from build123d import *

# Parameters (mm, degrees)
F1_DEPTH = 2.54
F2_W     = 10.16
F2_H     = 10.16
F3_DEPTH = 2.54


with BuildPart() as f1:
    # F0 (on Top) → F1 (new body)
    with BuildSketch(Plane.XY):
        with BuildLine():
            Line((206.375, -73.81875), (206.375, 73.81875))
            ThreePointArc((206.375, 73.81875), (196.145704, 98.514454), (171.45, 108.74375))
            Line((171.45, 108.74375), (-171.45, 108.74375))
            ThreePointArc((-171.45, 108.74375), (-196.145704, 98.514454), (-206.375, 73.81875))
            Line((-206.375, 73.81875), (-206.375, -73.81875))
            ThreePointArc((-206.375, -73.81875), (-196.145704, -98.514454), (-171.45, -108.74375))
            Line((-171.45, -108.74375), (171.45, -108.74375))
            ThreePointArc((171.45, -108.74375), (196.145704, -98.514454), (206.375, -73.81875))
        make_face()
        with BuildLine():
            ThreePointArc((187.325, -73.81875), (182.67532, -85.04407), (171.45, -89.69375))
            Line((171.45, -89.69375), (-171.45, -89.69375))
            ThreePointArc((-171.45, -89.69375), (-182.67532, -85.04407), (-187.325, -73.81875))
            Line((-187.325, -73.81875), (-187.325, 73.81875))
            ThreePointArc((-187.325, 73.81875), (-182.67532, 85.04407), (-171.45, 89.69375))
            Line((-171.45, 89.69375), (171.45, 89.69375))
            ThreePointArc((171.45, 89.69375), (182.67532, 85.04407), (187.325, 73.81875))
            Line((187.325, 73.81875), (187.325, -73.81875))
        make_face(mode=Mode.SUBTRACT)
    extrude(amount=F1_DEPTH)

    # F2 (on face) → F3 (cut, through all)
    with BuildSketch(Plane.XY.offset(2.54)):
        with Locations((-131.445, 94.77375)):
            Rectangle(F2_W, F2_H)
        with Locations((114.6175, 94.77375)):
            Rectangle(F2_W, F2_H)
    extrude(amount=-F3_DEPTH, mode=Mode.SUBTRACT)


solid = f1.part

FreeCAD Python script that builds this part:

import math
import FreeCAD as App
import Part
import Sketcher

V = App.Vector
Q = App.Units.Quantity

doc = App.newDocument("Part")
params = doc.addObject("Spreadsheet::Sheet", "Params")
for row, (alias, value) in enumerate([
    ("sketch1_width", "13.5 in"),
    ("sketch1_radius", "1.375 in"),
    ("sketch1_radius2", "0.625 in"),
    ("sketch1_height", "5.8125 in"),
    ("pad1_length", "0.1 in"),
    ("sketch2_width", "0.4 in"),
], start=1):
    params.set(f"A{row}", alias)
    params.set(f"B{row}", "=" + value)
    params.setAlias(f"B{row}", alias)

body = doc.addObject("PartDesign::Body", "Body")

sketch1 = body.newObject("Sketcher::SketchObject", "Sketch")
sketch1.AttachmentSupport = (doc.getObject("XY_Plane"), [""])
sketch1.MapMode = "FlatFace"
sketch1.addGeometry([
    Part.LineSegment(V(206, -74, 0), V(206, 74, 0)),
    Part.ArcOfCircle(Part.Circle(V(171, 74, 0), V(0, 0, 1), 35), math.radians(0), math.radians(90)),
    Part.LineSegment(V(171, 109, 0), V(-171, 109, 0)),
    Part.ArcOfCircle(Part.Circle(V(-171, 74, 0), V(0, 0, 1), 35), math.radians(90), math.radians(180)),
    Part.LineSegment(V(-206, 74, 0), V(-206, -74, 0)),
    Part.ArcOfCircle(Part.Circle(V(-171, -74, 0), V(0, 0, 1), 35), math.radians(-180), math.radians(-90)),
    Part.LineSegment(V(-171, -109, 0), V(171, -109, 0)),
    Part.ArcOfCircle(Part.Circle(V(171, -74, 0), V(0, 0, 1), 35), math.radians(-90), math.radians(0)),
    Part.LineSegment(V(187, 74, 0), V(187, -74, 0)),
    Part.ArcOfCircle(Part.Circle(V(171, -74, 0), V(0, 0, 1), 16), math.radians(-90), math.radians(0)),
    Part.LineSegment(V(171, -90, 0), V(-171, -90, 0)),
    Part.ArcOfCircle(Part.Circle(V(-171, -74, 0), V(0, 0, 1), 16), math.radians(-180), math.radians(-90)),
    Part.LineSegment(V(-187, -74, 0), V(-187, 74, 0)),
    Part.ArcOfCircle(Part.Circle(V(-171, 74, 0), V(0, 0, 1), 16), math.radians(90), math.radians(180)),
    Part.LineSegment(V(-171, 90, 0), V(171, 90, 0)),
    Part.ArcOfCircle(Part.Circle(V(171, 74, 0), V(0, 0, 1), 16), math.radians(0), math.radians(90)),
], False)
sketch1.addConstraint([
    Sketcher.Constraint("Tangent", 0, 2, 1, 1),
    Sketcher.Constraint("Tangent", 1, 2, 2, 1),
    Sketcher.Constraint("Tangent", 2, 2, 3, 1),
    Sketcher.Constraint("Tangent", 3, 2, 4, 1),
    Sketcher.Constraint("Tangent", 4, 2, 5, 1),
    Sketcher.Constraint("Tangent", 5, 2, 6, 1),
    Sketcher.Constraint("Tangent", 6, 2, 7, 1),
    Sketcher.Constraint("Tangent", 7, 2, 0, 1),
    Sketcher.Constraint("Tangent", 8, 2, 9, 2),
    Sketcher.Constraint("Tangent", 9, 1, 10, 1),
    Sketcher.Constraint("Tangent", 10, 2, 11, 2),
    Sketcher.Constraint("Tangent", 11, 1, 12, 1),
    Sketcher.Constraint("Tangent", 12, 2, 13, 2),
    Sketcher.Constraint("Tangent", 13, 1, 14, 1),
    Sketcher.Constraint("Tangent", 14, 2, 15, 2),
    Sketcher.Constraint("Tangent", 15, 1, 8, 1),
    Sketcher.Constraint("Vertical", 0),
    Sketcher.Constraint("Horizontal", 2),
    Sketcher.Constraint("Vertical", 4),
    Sketcher.Constraint("Horizontal", 6),
    Sketcher.Constraint("Vertical", 8),
    Sketcher.Constraint("Horizontal", 10),
    Sketcher.Constraint("Vertical", 12),
    Sketcher.Constraint("Horizontal", 14),
    Sketcher.Constraint("Coincident", 9, 3, 7, 3),
    Sketcher.Constraint("Coincident", 11, 3, 5, 3),
    Sketcher.Constraint("Coincident", 13, 3, 3, 3),
    Sketcher.Constraint("Equal", 1, 3),
    Sketcher.Constraint("Equal", 3, 5),
    Sketcher.Constraint("Equal", 5, 7),
    Sketcher.Constraint("Equal", 13, 15),
    Sketcher.Constraint("Symmetric", 1, 3, 5, 3, -1, 1),
    Sketcher.Constraint("DistanceX", 2, 2, 2, 1, Q("13.5 in")),
    Sketcher.Constraint("Radius", 1, Q("1.375 in")),
    Sketcher.Constraint("Radius", 9, Q("0.625 in")),
    Sketcher.Constraint("DistanceY", 0, 1, 0, 2, Q("5.8125 in")),
])
sketch1.setExpression("Constraints[32]", "Params.sketch1_width")
sketch1.setExpression("Constraints[33]", "Params.sketch1_radius")
sketch1.setExpression("Constraints[34]", "Params.sketch1_radius2")
sketch1.setExpression("Constraints[35]", "Params.sketch1_height")
pad1 = body.newObject("PartDesign::Pad", "Pad")
pad1.Profile = sketch1
pad1.setExpression("Length", "Params.pad1_length")

sketch2 = body.newObject("Sketcher::SketchObject", "Sketch001")
sketch2.AttachmentSupport = (doc.getObject("XY_Plane"), [""])
sketch2.MapMode = "FlatFace"
sketch2.AttachmentOffset = App.Placement(V(0, 0, 0.1 * 25.4), App.Rotation())
sketch2.addGeometry([
    Part.LineSegment(V(-137, 100, 0), V(-137, 90, 0)),
    Part.LineSegment(V(-137, 90, 0), V(-126, 90, 0)),
    Part.LineSegment(V(-126, 90, 0), V(-126, 100, 0)),
    Part.LineSegment(V(-126, 100, 0), V(-137, 100, 0)),
    Part.LineSegment(V(110, 100, 0), V(110, 90, 0)),
    Part.LineSegment(V(110, 90, 0), V(120, 90, 0)),
    Part.LineSegment(V(120, 90, 0), V(120, 100, 0)),
    Part.LineSegment(V(120, 100, 0), V(110, 100, 0)),
], False)
sketch2.addConstraint([
    Sketcher.Constraint("Coincident", 0, 2, 1, 1),
    Sketcher.Constraint("Coincident", 1, 2, 2, 1),
    Sketcher.Constraint("Coincident", 2, 2, 3, 1),
    Sketcher.Constraint("Coincident", 3, 2, 0, 1),
    Sketcher.Constraint("Coincident", 4, 2, 5, 1),
    Sketcher.Constraint("Coincident", 5, 2, 6, 1),
    Sketcher.Constraint("Coincident", 6, 2, 7, 1),
    Sketcher.Constraint("Coincident", 7, 2, 4, 1),
    Sketcher.Constraint("Vertical", 0),
    Sketcher.Constraint("Horizontal", 1),
    Sketcher.Constraint("Vertical", 2),
    Sketcher.Constraint("Horizontal", 3),
    Sketcher.Constraint("Vertical", 4),
    Sketcher.Constraint("Horizontal", 5),
    Sketcher.Constraint("Vertical", 6),
    Sketcher.Constraint("Horizontal", 7),
    Sketcher.Constraint("Horizontal", 1, 2, 4, 2),
    Sketcher.Constraint("Horizontal", 3, 2, 6, 2),
    Sketcher.Constraint("Equal", 3, 5),
    Sketcher.Constraint("Equal", 7, 0),
    Sketcher.Constraint("DistanceX", 1, 1, 1, 2, Q("0.4 in")),
    Sketcher.Constraint("DistanceX", 0, 2, -1, 1, Q("5.375 in")),
    Sketcher.Constraint("DistanceY", -1, 1, 0, 2, Q("3.53125 in")),
    Sketcher.Constraint("DistanceX", -1, 1, 4, 2, Q("4.3125 in")),
])
sketch2.setExpression("Constraints[20]", "Params.sketch2_width")
pocket1 = body.newObject("PartDesign::Pocket", "Pocket")
pocket1.Profile = sketch2
pocket1.Type = "ThroughAll"

doc.recompute()
